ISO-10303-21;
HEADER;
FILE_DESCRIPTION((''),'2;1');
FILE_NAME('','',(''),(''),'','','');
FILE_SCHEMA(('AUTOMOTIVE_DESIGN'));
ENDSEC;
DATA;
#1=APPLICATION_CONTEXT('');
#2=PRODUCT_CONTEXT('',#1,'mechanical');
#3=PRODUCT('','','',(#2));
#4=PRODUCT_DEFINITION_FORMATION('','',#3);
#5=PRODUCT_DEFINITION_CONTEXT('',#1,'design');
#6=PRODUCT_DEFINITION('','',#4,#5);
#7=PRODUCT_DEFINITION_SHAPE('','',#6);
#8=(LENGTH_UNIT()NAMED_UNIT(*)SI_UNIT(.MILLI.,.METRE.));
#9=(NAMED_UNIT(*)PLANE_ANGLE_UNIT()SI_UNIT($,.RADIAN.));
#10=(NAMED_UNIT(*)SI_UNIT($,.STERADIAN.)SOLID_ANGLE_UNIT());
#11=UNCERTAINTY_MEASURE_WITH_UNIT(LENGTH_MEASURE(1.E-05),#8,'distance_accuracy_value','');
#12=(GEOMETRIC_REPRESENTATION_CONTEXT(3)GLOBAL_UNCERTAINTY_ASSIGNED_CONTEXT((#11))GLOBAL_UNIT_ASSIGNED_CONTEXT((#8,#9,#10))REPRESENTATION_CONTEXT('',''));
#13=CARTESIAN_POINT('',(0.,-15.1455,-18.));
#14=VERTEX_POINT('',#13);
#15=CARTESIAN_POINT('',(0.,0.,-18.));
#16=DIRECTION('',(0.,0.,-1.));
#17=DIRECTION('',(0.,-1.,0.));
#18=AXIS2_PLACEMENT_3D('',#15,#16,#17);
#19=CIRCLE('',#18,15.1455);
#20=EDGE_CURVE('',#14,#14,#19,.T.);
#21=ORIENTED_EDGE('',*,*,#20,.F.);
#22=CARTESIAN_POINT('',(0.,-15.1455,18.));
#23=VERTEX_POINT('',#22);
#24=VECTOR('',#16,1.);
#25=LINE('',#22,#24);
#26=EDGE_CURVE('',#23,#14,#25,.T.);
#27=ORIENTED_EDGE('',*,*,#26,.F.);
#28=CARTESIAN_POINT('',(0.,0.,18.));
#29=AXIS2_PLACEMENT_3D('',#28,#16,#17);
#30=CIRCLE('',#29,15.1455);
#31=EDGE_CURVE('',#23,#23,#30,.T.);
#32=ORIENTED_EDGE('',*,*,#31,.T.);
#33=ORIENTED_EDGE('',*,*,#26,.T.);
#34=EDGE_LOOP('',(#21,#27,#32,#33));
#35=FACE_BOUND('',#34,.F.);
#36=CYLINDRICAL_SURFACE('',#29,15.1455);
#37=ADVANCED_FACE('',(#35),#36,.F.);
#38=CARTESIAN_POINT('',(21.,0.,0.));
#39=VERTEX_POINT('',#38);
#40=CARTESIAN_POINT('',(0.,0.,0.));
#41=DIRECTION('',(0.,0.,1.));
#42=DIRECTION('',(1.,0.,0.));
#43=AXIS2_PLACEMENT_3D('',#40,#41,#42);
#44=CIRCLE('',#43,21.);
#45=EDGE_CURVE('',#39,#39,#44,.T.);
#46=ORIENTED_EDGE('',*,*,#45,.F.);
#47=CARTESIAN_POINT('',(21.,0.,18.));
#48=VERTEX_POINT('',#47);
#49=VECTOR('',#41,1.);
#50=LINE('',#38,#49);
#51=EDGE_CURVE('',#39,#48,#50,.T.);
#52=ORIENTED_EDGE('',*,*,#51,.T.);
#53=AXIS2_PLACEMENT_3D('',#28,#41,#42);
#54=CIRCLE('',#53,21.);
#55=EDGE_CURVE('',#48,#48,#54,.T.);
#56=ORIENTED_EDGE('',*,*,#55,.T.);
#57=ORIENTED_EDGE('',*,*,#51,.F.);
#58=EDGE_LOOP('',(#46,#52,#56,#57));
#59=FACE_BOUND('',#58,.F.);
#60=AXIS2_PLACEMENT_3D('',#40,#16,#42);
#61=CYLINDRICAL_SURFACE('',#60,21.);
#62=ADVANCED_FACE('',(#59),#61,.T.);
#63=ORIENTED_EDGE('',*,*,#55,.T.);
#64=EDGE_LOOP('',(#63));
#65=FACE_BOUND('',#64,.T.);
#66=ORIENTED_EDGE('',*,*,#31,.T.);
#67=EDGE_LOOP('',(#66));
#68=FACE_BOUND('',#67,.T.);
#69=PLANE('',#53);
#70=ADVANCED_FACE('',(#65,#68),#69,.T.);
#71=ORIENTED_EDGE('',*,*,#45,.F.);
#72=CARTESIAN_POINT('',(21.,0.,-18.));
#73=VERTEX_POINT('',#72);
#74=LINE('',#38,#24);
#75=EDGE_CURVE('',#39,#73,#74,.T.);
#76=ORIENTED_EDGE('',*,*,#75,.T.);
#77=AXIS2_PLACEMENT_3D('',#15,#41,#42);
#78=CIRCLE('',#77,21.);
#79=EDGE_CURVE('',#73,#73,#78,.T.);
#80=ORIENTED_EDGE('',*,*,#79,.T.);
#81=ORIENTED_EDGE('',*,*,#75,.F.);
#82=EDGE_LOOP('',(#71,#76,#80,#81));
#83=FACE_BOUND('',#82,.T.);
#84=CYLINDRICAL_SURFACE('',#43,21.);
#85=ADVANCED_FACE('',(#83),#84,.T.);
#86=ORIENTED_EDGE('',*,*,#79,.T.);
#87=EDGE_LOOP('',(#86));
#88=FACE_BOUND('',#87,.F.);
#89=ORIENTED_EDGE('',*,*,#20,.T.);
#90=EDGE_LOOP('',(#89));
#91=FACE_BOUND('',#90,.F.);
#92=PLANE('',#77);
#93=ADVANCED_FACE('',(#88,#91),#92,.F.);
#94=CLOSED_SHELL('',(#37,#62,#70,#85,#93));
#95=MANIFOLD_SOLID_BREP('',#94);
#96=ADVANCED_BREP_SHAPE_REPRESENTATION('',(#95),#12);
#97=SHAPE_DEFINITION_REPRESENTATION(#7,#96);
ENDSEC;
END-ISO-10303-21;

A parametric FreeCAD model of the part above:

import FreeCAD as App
import Part
import Sketcher

V = App.Vector

doc = App.newDocument("Part")
params = doc.addObject("Spreadsheet::Sheet", "Params")
for row, (alias, value) in enumerate([
    ("sketch1_diameter", "42 mm"),
    ("pad1_length", "36 mm"),
    ("hole_diameter", "30.291 mm"),
], start=1):
    params.set(f"A{row}", alias)
    params.set(f"B{row}", "=" + value)
    params.setAlias(f"B{row}", alias)

body = doc.addObject("PartDesign::Body", "Body")

# Sketch on XY plane
sketch1 = doc.addObject("Sketcher::SketchObject", "Sketch")
body.addObject(sketch1)
sketch1.AttachmentSupport = (doc.XY_Plane, [""])
sketch1.MapMode = "FlatFace"
sketch1.addGeometry(Part.Circle(V(0, 0, 0), V(0, 0, 1), 21), False)
sketch1.addConstraint([
    Sketcher.Constraint("Coincident", 0, 3, -1, 1),
    Sketcher.Constraint("Diameter", 0, 42.0),
])
sketch1.setExpression("Constraints[1]", "Params.sketch1_diameter")
pad1 = doc.addObject("PartDesign::Pad", "Pad")
body.addObject(pad1)
pad1.Profile = sketch1
pad1.setExpression("Length", "Params.pad1_length")
pad1.Midplane = True

# Sketch on XY plane
sketch2 = doc.addObject("Sketcher::SketchObject", "Sketch001")
body.addObject(sketch2)
sketch2.AttachmentSupport = (doc.XY_Plane, [""])
sketch2.MapMode = "FlatFace"
sketch2.AttachmentOffset = App.Placement(V(0, 0, 18), App.Rotation())
sketch2.addGeometry(Part.Circle(V(0, 0, 0), V(0, 0, 1), 15), False)
sketch2.addConstraint([
    Sketcher.Constraint("Coincident", 0, 3, -1, 1),
    Sketcher.Constraint("Diameter", 0, 30.291),
])
doc.recompute()
hole = doc.addObject("PartDesign::Hole", "Hole")
body.addObject(hole)
hole.Profile = sketch2
hole.ThreadType = "None"
hole.setExpression("Diameter", "Params.hole_diameter")
hole.DepthType = "ThroughAll"

doc.recompute()
